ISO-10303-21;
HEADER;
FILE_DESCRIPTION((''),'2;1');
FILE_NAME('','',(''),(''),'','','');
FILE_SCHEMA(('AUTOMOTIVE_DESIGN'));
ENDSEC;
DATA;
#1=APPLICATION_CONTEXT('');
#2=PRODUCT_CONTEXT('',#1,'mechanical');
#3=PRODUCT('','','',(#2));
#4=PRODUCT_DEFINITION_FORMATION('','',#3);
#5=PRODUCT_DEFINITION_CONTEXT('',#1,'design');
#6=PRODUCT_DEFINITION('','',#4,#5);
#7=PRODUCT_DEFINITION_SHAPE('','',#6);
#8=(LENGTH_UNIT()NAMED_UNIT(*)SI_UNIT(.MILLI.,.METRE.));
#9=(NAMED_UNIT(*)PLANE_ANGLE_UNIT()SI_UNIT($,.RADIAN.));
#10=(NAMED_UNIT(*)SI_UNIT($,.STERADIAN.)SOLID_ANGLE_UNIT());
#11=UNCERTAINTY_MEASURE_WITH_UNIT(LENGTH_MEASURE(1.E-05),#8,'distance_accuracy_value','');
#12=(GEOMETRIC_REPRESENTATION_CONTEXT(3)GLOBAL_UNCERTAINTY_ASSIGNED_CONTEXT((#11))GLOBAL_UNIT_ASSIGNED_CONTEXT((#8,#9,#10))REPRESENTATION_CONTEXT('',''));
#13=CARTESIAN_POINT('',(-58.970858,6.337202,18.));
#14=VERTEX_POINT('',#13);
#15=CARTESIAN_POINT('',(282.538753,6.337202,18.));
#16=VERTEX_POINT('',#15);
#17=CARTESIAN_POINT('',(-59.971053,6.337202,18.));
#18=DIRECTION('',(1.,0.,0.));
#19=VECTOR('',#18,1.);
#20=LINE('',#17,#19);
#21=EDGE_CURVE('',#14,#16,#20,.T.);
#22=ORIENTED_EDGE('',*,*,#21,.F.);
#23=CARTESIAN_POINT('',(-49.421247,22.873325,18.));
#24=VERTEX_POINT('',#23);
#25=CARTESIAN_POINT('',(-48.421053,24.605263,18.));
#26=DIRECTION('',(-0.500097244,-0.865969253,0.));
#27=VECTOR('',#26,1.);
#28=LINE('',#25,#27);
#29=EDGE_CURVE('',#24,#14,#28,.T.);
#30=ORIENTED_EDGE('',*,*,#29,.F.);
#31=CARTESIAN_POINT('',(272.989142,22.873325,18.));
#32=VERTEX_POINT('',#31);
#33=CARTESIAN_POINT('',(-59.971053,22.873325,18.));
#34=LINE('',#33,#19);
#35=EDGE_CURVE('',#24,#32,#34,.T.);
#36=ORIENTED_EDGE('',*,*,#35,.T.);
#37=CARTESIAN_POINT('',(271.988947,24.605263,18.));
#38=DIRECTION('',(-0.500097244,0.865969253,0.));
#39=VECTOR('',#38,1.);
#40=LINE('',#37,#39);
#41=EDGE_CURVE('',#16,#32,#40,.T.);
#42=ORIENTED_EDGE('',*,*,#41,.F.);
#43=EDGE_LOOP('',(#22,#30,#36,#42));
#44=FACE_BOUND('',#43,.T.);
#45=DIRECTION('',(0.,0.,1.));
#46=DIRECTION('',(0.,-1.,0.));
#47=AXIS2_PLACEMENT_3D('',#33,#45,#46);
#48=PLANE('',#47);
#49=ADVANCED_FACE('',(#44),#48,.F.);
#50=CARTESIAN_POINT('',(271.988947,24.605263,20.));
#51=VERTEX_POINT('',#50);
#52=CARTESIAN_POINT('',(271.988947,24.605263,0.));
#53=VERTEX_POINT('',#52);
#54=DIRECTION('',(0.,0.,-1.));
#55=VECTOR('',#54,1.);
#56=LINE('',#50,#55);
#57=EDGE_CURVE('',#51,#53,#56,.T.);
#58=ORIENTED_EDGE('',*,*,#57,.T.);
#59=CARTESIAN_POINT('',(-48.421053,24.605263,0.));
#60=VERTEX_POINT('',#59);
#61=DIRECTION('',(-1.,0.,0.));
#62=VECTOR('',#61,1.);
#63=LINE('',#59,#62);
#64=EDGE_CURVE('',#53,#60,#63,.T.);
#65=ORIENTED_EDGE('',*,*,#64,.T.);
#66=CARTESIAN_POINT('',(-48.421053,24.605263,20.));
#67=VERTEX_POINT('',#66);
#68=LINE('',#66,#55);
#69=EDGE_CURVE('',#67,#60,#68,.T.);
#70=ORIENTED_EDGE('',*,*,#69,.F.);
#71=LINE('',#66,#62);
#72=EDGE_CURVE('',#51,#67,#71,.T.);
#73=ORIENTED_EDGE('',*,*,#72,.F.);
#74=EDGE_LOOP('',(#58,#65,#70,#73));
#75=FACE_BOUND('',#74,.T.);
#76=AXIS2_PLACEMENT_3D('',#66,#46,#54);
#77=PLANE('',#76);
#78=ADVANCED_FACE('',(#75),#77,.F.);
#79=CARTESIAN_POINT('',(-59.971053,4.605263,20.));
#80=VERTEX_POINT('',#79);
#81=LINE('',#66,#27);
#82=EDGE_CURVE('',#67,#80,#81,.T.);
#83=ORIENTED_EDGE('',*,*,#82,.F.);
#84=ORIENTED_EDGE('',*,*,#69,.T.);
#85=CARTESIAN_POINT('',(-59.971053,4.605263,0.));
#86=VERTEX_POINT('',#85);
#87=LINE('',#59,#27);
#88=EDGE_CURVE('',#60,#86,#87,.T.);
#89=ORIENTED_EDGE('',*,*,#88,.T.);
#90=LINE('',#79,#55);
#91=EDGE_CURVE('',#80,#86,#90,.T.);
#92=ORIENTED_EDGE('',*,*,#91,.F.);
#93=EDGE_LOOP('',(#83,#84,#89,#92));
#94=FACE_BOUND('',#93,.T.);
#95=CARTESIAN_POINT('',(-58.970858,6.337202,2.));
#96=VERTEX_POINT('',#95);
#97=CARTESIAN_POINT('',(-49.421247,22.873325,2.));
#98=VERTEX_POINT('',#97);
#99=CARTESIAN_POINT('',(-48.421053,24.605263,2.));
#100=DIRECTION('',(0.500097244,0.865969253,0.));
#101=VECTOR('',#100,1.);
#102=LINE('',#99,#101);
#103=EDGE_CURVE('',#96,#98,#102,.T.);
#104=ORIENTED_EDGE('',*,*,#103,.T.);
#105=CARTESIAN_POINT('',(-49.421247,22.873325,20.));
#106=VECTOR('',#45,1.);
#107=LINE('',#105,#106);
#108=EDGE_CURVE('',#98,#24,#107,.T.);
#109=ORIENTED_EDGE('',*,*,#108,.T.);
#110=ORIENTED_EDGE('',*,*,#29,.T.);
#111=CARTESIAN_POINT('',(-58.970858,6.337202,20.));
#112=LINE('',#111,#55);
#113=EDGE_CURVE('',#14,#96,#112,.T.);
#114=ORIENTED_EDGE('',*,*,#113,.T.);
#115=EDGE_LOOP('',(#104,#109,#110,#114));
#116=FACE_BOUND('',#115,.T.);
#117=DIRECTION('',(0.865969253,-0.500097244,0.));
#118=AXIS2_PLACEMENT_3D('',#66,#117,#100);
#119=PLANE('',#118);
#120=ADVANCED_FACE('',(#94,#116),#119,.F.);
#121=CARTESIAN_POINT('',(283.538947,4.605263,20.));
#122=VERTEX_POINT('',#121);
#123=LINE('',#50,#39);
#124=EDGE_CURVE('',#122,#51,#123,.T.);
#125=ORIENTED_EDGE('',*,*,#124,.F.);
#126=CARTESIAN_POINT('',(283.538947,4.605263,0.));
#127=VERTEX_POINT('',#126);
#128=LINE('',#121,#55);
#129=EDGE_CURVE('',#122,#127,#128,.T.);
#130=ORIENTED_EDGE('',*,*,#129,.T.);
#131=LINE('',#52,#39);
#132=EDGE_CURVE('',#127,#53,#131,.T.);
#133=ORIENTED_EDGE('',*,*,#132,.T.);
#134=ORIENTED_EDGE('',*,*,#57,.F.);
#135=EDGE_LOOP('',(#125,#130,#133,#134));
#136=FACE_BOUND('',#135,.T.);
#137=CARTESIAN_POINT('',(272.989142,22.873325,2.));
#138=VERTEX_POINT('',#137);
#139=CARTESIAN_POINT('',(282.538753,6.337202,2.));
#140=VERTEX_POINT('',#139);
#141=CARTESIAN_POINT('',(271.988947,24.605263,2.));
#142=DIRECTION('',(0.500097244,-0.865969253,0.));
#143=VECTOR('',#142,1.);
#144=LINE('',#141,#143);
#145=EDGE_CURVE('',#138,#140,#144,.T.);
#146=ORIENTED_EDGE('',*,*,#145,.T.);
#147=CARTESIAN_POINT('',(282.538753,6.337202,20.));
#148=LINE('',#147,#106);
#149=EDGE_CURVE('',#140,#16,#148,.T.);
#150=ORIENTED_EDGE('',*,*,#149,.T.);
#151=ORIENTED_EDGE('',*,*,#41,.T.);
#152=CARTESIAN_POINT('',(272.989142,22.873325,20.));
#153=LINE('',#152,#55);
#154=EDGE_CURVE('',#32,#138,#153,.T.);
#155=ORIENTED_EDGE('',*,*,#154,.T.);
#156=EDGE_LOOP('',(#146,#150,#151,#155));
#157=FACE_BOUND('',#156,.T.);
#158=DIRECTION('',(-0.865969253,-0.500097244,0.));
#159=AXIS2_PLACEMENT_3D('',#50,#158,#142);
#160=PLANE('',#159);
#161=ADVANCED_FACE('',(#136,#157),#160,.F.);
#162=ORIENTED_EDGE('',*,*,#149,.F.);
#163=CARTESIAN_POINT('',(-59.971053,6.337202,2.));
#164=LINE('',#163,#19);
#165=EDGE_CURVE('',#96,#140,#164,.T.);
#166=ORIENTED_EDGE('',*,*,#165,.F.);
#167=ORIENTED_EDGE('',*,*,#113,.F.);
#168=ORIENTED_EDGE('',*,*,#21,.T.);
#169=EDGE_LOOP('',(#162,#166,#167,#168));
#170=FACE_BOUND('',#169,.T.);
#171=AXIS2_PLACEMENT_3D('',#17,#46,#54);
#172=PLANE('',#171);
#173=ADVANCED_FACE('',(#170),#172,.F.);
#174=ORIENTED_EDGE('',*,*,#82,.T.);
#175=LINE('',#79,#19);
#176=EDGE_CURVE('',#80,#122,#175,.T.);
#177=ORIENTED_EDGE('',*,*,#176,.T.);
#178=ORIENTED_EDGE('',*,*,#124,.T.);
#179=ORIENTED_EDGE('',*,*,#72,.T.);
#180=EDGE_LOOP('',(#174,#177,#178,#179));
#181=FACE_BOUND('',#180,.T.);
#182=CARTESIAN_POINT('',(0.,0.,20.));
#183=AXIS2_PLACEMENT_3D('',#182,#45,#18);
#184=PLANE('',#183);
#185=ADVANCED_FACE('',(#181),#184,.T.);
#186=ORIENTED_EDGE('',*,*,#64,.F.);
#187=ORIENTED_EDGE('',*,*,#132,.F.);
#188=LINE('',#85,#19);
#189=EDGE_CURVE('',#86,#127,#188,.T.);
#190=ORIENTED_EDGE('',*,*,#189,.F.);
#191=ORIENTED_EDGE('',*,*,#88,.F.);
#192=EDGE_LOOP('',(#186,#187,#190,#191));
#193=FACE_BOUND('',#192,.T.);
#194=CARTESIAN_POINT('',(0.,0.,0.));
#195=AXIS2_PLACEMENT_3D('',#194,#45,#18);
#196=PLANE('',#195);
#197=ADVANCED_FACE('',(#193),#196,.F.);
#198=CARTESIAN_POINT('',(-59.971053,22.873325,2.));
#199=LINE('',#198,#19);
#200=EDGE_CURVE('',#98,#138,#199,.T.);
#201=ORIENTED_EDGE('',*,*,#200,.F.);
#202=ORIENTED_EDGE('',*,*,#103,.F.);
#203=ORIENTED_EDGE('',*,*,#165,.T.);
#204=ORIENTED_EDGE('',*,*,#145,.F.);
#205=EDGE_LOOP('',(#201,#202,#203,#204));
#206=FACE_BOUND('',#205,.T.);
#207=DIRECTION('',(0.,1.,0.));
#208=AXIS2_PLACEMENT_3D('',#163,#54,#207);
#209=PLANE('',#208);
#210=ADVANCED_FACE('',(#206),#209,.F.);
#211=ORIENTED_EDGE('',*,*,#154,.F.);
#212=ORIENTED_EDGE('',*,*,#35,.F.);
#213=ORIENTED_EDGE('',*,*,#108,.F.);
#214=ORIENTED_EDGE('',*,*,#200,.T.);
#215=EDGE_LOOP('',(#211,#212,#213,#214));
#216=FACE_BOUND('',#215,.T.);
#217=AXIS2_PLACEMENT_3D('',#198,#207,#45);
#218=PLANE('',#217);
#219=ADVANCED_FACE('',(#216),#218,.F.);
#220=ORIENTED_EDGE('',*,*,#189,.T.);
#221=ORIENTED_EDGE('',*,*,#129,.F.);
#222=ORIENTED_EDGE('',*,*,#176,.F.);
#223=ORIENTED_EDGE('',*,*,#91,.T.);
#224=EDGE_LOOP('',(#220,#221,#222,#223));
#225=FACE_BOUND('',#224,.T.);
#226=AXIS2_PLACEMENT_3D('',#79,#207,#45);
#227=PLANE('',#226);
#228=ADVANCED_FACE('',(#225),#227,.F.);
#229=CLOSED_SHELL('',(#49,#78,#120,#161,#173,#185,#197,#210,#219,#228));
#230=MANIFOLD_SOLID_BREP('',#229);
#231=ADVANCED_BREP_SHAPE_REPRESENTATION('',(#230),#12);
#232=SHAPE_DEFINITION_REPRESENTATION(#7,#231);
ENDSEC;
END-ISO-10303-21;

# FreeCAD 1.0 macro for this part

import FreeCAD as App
import Part
import Sketcher
from FreeCAD import Vector
Q = App.Units.Quantity


def add_polygon(sketch, points):
    """Adds a closed chain of lines whose ends are joined by coincident constraints."""
    first, n = sketch.GeometryCount, len(points)
    for a, b in zip(points, points[1:] + points[:1]):
        sketch.addGeometry(Part.LineSegment(App.Vector(*a, 0), App.Vector(*b, 0)), False)
    for i in range(n):
        sketch.addConstraint(Sketcher.Constraint("Coincident", first + i, 2, first + (i + 1) % n, 1))

doc = App.newDocument("Part")
body = doc.addObject("PartDesign::Body", "Body")

# Sketch on XY plane
sketch1 = body.newObject("Sketcher::SketchObject", "Sketch")
sketch1.AttachmentSupport = (doc.getObject("XY_Plane"), [""])
sketch1.MapMode = "FlatFace"
add_polygon(sketch1, [(271.988947, 24.605263), (-48.421053, 24.605263), (-59.971053, 4.605263), (283.538947, 4.605263)])  # lines 0-3
sketch1.addConstraint([
    Sketcher.Constraint("Horizontal", 0),
    Sketcher.Constraint("Horizontal", 2),
    Sketcher.Constraint("Equal", 1, 3),
    Sketcher.Constraint("DistanceY", 1, 2, 0, 2, Q("20 mm")),
    Sketcher.Constraint("DistanceX", 0, 2, 0, 1, Q("320.41 mm")),
    Sketcher.Constraint("DistanceX", 2, 1, 2, 2, Q("343.51 mm")),
    Sketcher.Constraint("DistanceX", 0, 2, -1, 1, Q("48.421053 mm")),
    Sketcher.Constraint("DistanceY", -1, 1, 0, 2, Q("24.605263 mm")),
])
pad1 = body.newObject("PartDesign::Pad", "Pad")
pad1.Profile = sketch1
pad1.Length = 20

# Sketch on YZ plane
sketch2 = body.newObject("Sketcher::SketchObject", "Sketch001")
sketch2.AttachmentSupport = (doc.getObject("YZ_Plane"), [""])
sketch2.MapMode = "FlatFace"
add_polygon(sketch2, [(22.873325, 18), (6.337202, 18), (6.337202, 2), (22.873325, 2)])  # lines 0-3
sketch2.addConstraint([
    Sketcher.Constraint("Horizontal", 0),
    Sketcher.Constraint("Vertical", 1),
    Sketcher.Constraint("Horizontal", 2),
    Sketcher.Constraint("Vertical", 3),
    Sketcher.Constraint("DistanceY", 1, 2, 1, 1, Q("16 mm")),
    Sketcher.Constraint("DistanceY", -1, 1, 0, 2, Q("18 mm")),
    Sketcher.Constraint("DistanceX", -1, 1, 0, 2, Q("6.337202 mm")),
    Sketcher.Constraint("DistanceX", 0, 2, 0, 1, Q("16.536123 mm")),
])
pocket1 = body.newObject("PartDesign::Pocket", "Pocket")
pocket1.Profile = sketch2
pocket1.Type = "ThroughAll"
pocket1.Midplane = True

doc.recompute()
